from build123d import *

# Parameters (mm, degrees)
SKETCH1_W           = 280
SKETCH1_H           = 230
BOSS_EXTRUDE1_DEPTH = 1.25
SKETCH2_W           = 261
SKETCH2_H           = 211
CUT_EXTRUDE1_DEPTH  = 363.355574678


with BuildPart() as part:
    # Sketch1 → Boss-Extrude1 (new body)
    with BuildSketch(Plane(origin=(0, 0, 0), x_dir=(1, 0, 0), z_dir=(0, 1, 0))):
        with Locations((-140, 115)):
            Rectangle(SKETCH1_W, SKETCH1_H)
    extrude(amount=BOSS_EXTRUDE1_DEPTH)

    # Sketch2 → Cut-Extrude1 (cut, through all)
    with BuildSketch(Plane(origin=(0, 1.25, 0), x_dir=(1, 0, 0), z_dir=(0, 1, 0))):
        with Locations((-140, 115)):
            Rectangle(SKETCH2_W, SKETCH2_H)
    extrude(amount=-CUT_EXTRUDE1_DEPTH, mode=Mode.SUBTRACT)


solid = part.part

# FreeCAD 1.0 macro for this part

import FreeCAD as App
import Part
import Sketcher
Q = App.Units.Quantity


def add_polygon(sketch, points):
    """Adds a closed chain of lines whose ends are joined by coincident constraints."""
    first, n = sketch.GeometryCount, len(points)
    for a, b in zip(points, points[1:] + points[:1]):
        sketch.addGeometry(Part.LineSegment(App.Vector(*a, 0), App.Vector(*b, 0)), False)
    for i in range(n):
        sketch.addConstraint(Sketcher.Constraint("Coincident", first + i, 2, first + (i + 1) % n, 1))

doc = App.newDocument("Part")
body = doc.addObject("PartDesign::Body", "Body")

# Sketch on XZ plane
sketch1 = body.newObject("Sketcher::SketchObject", "Sketch")
sketch1.AttachmentSupport = (doc.getObject("XZ_Plane"), [""])
sketch1.MapMode = "FlatFace"
add_polygon(sketch1, [(-280, -230), (-280, 0), (0, 0), (0, -230)])  # lines 0-3
sketch1.addConstraint(Sketcher.Constraint("Vertical", 0))
sketch1.addConstraint(Sketcher.Constraint("Horizontal", 1))
sketch1.addConstraint(Sketcher.Constraint("Vertical", 2))
sketch1.addConstraint(Sketcher.Constraint("Horizontal", 3))
sketch1.addConstraint(Sketcher.Constraint("Coincident", 1, 2, -1, 1))
sketch1.addConstraint(Sketcher.Constraint("DistanceX", 1, 1, 1, 2, Q("280 mm")))
sketch1.addConstraint(Sketcher.Constraint("DistanceY", 0, 1, 0, 2, Q("230 mm")))
pad1 = body.newObject("PartDesign::Pad", "Pad")
pad1.Profile = sketch1
pad1.Length = 1.25
pad1.Reversed = True

# Sketch on XZ plane
sketch2 = body.newObject("Sketcher::SketchObject", "Sketch001")
sketch2.AttachmentSupport = (doc.getObject("XZ_Plane"), [""])
sketch2.MapMode = "FlatFace"
sketch2.AttachmentOffset = App.Placement(App.Vector(0, 0, -1.25), App.Rotation())
add_polygon(sketch2, [(-270, -220), (-270, -10), (-10, -10), (-10, -220)])  # lines 0-3
sketch2.addConstraint(Sketcher.Constraint("Vertical", 0))
sketch2.addConstraint(Sketcher.Constraint("Horizontal", 1))
sketch2.addConstraint(Sketcher.Constraint("Vertical", 2))
sketch2.addConstraint(Sketcher.Constraint("Horizontal", 3))
sketch2.addConstraint(Sketcher.Constraint("DistanceX", 1, 1, 1, 2, Q("261 mm")))
sketch2.addConstraint(Sketcher.Constraint("DistanceY", 0, 1, 0, 2, Q("211 mm")))
sketch2.addConstraint(Sketcher.Constraint("DistanceX", 0, 2, -1, 1, Q("270.5 mm")))
sketch2.addConstraint(Sketcher.Constraint("DistanceY", 0, 2, -1, 1, Q("9.5 mm")))
pocket1 = body.newObject("PartDesign::Pocket", "Pocket")
pocket1.Profile = sketch2
pocket1.Type = "ThroughAll"
pocket1.Reversed = True

doc.recompute()
